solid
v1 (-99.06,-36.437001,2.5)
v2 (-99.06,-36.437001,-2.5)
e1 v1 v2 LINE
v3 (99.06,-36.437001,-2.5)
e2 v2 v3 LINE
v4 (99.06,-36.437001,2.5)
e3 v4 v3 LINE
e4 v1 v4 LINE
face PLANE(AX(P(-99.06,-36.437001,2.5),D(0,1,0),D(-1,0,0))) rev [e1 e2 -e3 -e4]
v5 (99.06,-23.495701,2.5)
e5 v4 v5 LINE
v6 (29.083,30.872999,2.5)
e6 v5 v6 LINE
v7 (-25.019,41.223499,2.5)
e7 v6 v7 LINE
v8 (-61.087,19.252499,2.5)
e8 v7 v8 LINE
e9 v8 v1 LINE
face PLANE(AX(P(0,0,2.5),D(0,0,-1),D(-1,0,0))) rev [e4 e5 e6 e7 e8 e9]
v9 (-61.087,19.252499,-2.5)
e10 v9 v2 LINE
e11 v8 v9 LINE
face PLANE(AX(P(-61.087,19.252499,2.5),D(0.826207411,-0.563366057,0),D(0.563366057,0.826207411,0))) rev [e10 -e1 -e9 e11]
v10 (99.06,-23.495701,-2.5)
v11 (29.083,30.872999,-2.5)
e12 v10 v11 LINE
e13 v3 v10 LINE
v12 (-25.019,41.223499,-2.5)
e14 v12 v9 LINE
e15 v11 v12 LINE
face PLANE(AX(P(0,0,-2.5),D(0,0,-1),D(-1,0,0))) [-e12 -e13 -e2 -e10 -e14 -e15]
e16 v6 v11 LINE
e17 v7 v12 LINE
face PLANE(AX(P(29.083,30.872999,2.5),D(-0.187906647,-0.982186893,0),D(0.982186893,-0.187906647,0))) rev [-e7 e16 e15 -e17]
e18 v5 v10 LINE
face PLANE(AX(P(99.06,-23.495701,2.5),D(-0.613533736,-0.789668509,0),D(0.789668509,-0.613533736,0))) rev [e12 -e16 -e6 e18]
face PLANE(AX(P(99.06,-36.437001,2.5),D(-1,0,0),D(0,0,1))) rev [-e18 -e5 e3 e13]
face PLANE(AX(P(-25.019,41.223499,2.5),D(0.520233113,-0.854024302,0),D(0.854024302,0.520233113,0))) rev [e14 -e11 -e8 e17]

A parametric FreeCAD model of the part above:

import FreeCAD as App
import Part
import Sketcher
from FreeCAD import Vector
Q = App.Units.Quantity


def add_polygon(sketch, points):
    """Adds a closed chain of lines whose ends are joined by coincident constraints."""
    first, n = sketch.GeometryCount, len(points)
    for a, b in zip(points, points[1:] + points[:1]):
        sketch.addGeometry(Part.LineSegment(App.Vector(*a, 0), App.Vector(*b, 0)), False)
    for i in range(n):
        sketch.addConstraint(Sketcher.Constraint("Coincident", first + i, 2, first + (i + 1) % n, 1))

doc = App.newDocument("Part")
body = doc.addObject("PartDesign::Body", "Body")

sketch1 = doc.addObject("Sketcher::SketchObject", "Sketch")
body.addObject(sketch1)
sketch1.AttachmentSupport = (doc.XY_Plane, [""])
sketch1.MapMode = "FlatFace"
add_polygon(sketch1, [(-99, -36), (99, -36), (99, -23), (29, 31), (-25, 41), (-61, 19)])
sketch1.addConstraint(Sketcher.Constraint("Horizontal", 0))
sketch1.addConstraint(Sketcher.Constraint("Vertical", 1))
sketch1.addConstraint(Sketcher.Constraint("DistanceX", 0, 1, 0, 2, Q("198.12 mm")))
sketch1.addConstraint(Sketcher.Constraint("DistanceX", -1, 1, 0, 2, Q("99.06 mm")))
sketch1.addConstraint(Sketcher.Constraint("DistanceY", 0, 2, 2, 2, Q("67.31 mm")))
sketch1.addConstraint(Sketcher.Constraint("DistanceX", 4, 2, 2, 2, Q("90.17 mm")))
sketch1.addConstraint(Sketcher.Constraint("DistanceY", 1, 1, 1, 2, Q("12.9413 mm")))
sketch1.addConstraint(Sketcher.Constraint("DistanceY", 0, 2, -1, 1, Q("36.437001 mm")))
sketch1.addConstraint(Sketcher.Constraint("DistanceX", -1, 1, 2, 2, Q("29.083 mm")))
sketch1.addConstraint(Sketcher.Constraint("DistanceX", 3, 2, -1, 1, Q("25.019 mm")))
sketch1.addConstraint(Sketcher.Constraint("DistanceY", 4, 2, 3, 2, Q("21.971 mm")))
sketch1.addConstraint(Sketcher.Constraint("DistanceY", -1, 1, 3, 2, Q("41.223499 mm")))
pad1 = doc.addObject("PartDesign::Pad", "Pad")
body.addObject(pad1)
pad1.Profile = sketch1
pad1.Length = 5
pad1.Midplane = True

doc.recompute()
